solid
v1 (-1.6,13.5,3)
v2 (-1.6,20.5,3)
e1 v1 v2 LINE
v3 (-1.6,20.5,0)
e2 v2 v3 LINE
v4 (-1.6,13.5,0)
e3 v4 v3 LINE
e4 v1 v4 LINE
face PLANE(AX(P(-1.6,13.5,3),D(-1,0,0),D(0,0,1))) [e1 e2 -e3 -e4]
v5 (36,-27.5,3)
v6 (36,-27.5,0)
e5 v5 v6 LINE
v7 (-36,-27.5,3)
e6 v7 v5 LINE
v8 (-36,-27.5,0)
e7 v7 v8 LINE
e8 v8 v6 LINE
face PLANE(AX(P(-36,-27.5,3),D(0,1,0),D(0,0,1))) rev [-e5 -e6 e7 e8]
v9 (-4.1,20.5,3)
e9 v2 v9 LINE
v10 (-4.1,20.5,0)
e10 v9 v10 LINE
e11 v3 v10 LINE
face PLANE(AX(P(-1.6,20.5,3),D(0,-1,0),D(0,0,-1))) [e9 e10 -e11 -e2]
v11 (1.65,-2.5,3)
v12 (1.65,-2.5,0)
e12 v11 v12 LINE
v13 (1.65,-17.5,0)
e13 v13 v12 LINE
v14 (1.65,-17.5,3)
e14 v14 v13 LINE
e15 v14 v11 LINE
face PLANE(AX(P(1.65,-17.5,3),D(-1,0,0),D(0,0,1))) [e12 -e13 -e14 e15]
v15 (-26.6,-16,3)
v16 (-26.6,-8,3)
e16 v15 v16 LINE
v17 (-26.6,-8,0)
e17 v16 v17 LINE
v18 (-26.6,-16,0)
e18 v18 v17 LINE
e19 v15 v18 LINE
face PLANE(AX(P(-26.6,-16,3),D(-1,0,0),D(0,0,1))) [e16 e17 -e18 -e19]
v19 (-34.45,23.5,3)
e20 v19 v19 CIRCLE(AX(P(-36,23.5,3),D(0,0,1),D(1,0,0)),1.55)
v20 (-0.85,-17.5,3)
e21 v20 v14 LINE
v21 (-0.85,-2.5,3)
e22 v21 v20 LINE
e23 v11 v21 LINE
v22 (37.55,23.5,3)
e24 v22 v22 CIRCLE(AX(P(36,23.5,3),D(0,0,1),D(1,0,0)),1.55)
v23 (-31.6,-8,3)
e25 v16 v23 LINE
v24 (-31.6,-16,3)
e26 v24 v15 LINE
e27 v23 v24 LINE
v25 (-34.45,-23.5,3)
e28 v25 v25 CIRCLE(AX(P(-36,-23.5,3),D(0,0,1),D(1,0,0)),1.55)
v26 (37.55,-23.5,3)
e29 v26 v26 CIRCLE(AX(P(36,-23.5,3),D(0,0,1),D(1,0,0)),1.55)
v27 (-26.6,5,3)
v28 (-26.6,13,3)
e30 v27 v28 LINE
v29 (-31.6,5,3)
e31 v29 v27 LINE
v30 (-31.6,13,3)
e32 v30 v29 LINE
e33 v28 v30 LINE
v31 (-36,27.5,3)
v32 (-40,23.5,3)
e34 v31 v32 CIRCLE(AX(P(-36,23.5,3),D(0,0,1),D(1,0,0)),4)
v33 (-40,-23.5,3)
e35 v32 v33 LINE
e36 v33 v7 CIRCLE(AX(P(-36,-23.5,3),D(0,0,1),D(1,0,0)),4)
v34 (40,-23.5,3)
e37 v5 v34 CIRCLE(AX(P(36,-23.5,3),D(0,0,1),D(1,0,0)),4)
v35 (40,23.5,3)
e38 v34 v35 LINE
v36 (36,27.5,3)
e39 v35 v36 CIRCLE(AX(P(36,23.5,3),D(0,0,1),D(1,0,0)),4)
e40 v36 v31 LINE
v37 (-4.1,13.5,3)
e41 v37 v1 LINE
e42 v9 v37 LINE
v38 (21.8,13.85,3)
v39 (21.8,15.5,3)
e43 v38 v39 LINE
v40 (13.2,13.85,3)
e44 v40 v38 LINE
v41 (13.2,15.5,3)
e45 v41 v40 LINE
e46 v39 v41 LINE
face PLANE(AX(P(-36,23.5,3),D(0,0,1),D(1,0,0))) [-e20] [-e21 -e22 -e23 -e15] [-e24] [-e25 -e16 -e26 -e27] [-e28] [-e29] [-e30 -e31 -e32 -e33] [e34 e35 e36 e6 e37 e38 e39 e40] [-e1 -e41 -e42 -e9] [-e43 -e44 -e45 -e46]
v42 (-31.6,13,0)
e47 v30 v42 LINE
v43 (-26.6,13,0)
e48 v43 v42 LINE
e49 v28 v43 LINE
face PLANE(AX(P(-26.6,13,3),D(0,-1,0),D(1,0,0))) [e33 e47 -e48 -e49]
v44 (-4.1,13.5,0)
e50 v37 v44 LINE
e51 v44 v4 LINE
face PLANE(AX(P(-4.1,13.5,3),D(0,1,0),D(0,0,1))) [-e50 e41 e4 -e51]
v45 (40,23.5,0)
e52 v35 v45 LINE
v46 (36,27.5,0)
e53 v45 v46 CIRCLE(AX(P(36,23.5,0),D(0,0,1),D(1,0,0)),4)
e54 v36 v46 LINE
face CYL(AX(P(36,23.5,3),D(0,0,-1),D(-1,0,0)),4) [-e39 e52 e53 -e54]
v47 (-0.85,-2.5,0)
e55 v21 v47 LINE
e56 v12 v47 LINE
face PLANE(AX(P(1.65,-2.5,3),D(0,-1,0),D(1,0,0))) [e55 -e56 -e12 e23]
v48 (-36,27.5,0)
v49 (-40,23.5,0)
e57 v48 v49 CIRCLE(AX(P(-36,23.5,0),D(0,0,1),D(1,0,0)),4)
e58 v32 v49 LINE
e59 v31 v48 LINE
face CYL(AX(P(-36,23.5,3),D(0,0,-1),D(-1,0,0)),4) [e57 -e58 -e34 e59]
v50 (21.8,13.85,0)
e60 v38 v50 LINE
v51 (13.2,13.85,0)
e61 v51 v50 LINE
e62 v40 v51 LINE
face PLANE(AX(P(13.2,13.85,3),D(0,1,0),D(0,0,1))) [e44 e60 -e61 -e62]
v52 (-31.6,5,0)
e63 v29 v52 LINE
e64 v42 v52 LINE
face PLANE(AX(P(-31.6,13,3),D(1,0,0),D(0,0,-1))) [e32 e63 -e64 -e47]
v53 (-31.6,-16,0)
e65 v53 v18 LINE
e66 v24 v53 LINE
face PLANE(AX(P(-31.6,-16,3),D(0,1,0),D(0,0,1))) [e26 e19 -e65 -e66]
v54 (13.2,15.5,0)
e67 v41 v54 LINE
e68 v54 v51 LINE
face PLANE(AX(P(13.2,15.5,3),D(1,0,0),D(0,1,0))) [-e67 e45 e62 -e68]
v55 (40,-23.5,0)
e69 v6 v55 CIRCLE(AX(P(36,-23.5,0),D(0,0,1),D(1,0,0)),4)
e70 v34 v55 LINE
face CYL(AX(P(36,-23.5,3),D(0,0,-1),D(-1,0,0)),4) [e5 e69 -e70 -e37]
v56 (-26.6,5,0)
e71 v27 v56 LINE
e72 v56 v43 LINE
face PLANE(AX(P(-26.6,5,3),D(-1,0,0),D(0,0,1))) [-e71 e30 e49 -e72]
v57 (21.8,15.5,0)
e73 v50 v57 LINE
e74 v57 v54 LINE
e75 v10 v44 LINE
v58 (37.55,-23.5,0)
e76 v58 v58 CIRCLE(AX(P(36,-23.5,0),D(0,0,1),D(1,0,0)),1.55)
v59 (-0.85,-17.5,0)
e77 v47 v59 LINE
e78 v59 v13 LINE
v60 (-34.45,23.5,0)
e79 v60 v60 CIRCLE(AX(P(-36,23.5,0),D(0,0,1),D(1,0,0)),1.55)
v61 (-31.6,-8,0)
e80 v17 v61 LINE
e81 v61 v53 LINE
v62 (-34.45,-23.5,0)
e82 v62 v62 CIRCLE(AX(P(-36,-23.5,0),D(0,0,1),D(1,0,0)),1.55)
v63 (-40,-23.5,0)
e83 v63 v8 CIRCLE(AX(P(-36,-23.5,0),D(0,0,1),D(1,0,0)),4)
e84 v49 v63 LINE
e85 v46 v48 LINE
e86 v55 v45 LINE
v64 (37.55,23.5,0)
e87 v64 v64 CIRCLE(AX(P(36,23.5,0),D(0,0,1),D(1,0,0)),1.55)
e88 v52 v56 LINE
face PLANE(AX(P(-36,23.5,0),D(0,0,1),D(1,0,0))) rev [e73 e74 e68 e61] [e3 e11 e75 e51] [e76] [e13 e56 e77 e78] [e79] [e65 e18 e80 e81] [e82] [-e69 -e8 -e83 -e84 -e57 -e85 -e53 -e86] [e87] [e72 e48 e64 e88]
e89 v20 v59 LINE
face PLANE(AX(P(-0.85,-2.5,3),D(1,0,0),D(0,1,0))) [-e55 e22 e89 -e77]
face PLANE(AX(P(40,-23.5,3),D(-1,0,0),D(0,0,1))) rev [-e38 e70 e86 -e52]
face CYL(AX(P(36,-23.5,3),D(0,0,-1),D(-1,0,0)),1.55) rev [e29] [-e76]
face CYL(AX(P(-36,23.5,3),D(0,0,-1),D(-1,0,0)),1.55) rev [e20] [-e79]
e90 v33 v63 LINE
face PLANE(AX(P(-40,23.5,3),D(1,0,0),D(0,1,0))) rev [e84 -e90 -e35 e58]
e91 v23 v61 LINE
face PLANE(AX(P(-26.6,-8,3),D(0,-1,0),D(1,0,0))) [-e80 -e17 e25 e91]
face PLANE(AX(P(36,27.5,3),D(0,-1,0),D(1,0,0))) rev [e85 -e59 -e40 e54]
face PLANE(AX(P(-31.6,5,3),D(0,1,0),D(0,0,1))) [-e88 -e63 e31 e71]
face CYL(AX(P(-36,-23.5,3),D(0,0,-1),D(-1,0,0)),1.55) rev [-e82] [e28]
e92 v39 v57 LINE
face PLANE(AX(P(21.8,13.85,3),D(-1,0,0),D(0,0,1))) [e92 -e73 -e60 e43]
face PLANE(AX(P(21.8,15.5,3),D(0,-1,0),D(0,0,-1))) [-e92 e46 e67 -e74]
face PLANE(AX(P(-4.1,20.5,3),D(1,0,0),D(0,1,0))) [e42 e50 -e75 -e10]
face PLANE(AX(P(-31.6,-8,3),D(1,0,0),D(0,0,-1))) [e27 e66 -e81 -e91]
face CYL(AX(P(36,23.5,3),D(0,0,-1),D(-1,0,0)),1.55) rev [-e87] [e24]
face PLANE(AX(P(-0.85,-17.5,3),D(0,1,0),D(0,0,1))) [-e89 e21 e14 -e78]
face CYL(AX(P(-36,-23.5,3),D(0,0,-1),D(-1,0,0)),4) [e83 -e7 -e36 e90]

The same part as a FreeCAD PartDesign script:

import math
import FreeCAD as App
import Part
import Sketcher

doc = App.newDocument("Part")
body = doc.addObject("PartDesign::Body", "Body")

sketch1 = body.newObject("Sketcher::SketchObject", "Sketch")
sketch1.AttachmentSupport = (doc.getObject("XY_Plane"), [""])
sketch1.MapMode = "FlatFace"
sketch1.addGeometry(Part.LineSegment(App.Vector(36, 27.5, 0), App.Vector(-36, 27.5, 0)), False)
sketch1.addGeometry(Part.ArcOfCircle(Part.Circle(App.Vector(-36, 23.5, 0), App.Vector(0, 0, 1), 4), math.radians(90), math.radians(180)), False)
sketch1.addGeometry(Part.LineSegment(App.Vector(-40, 23.5, 0), App.Vector(-40, -23.5, 0)), False)
sketch1.addGeometry(Part.ArcOfCircle(Part.Circle(App.Vector(-36, -23.5, 0), App.Vector(0, 0, 1), 4), math.radians(180), math.radians(270)), False)
sketch1.addGeometry(Part.LineSegment(App.Vector(-36, -27.5, 0), App.Vector(36, -27.5, 0)), False)
sketch1.addGeometry(Part.ArcOfCircle(Part.Circle(App.Vector(36, -23.5, 0), App.Vector(0, 0, 1), 4), math.radians(-90), math.radians(0)), False)
sketch1.addGeometry(Part.LineSegment(App.Vector(40, -23.5, 0), App.Vector(40, 23.5, 0)), False)
sketch1.addGeometry(Part.ArcOfCircle(Part.Circle(App.Vector(36, 23.5, 0), App.Vector(0, 0, 1), 4), math.radians(0), math.radians(90)), False)
sketch1.addGeometry(Part.Circle(App.Vector(-36, -23.5, 0), App.Vector(0, 0, 1), 1.6), False)
sketch1.addGeometry(Part.LineSegment(App.Vector(-26.6, -16, 0), App.Vector(-31.6, -16, 0)), False)
sketch1.addGeometry(Part.LineSegment(App.Vector(-31.6, -16, 0), App.Vector(-31.6, -8, 0)), False)
sketch1.addGeometry(Part.LineSegment(App.Vector(-31.6, -8, 0), App.Vector(-26.6, -8, 0)), False)
sketch1.addGeometry(Part.LineSegment(App.Vector(-26.6, -8, 0), App.Vector(-26.6, -16, 0)), False)
sketch1.addGeometry(Part.Circle(App.Vector(36, -23.5, 0), App.Vector(0, 0, 1), 1.6), False)
sketch1.addGeometry(Part.LineSegment(App.Vector(1.6, -17.5, 0), App.Vector(-0.8, -17.5, 0)), False)
sketch1.addGeometry(Part.LineSegment(App.Vector(-0.8, -17.5, 0), App.Vector(-0.8, -2.5, 0)), False)
sketch1.addGeometry(Part.LineSegment(App.Vector(-0.8, -2.5, 0), App.Vector(1.6, -2.5, 0)), False)
sketch1.addGeometry(Part.LineSegment(App.Vector(1.6, -2.5, 0), App.Vector(1.6, -17.5, 0)), False)
sketch1.addGeometry(Part.LineSegment(App.Vector(-26.6, 5, 0), App.Vector(-31.6, 5, 0)), False)
sketch1.addGeometry(Part.LineSegment(App.Vector(-31.6, 5, 0), App.Vector(-31.6, 13, 0)), False)
sketch1.addGeometry(Part.LineSegment(App.Vector(-31.6, 13, 0), App.Vector(-26.6, 13, 0)), False)
sketch1.addGeometry(Part.LineSegment(App.Vector(-26.6, 13, 0), App.Vector(-26.6, 5, 0)), False)
sketch1.addGeometry(Part.Circle(App.Vector(-36, 23.5, 0), App.Vector(0, 0, 1), 1.6), False)
sketch1.addGeometry(Part.LineSegment(App.Vector(-1.6, 13.5, 0), App.Vector(-4.1, 13.5, 0)), False)
sketch1.addGeometry(Part.LineSegment(App.Vector(-4.1, 13.5, 0), App.Vector(-4.1, 20.5, 0)), False)
sketch1.addGeometry(Part.LineSegment(App.Vector(-4.1, 20.5, 0), App.Vector(-1.6, 20.5, 0)), False)
sketch1.addGeometry(Part.LineSegment(App.Vector(-1.6, 20.5, 0), App.Vector(-1.6, 13.5, 0)), False)
sketch1.addGeometry(Part.LineSegment(App.Vector(21.8, 13.8, 0), App.Vector(13.2, 13.8, 0)), False)
sketch1.addGeometry(Part.LineSegment(App.Vector(13.2, 13.8, 0), App.Vector(13.2, 15.5, 0)), False)
sketch1.addGeometry(Part.LineSegment(App.Vector(13.2, 15.5, 0), App.Vector(21.8, 15.5, 0)), False)
sketch1.addGeometry(Part.LineSegment(App.Vector(21.8, 15.5, 0), App.Vector(21.8, 13.8, 0)), False)
sketch1.addGeometry(Part.Circle(App.Vector(36, 23.5, 0), App.Vector(0, 0, 1), 1.6), False)
sketch1.addConstraint(Sketcher.Constraint("Tangent", 0, 2, 1, 1))
sketch1.addConstraint(Sketcher.Constraint("Tangent", 1, 2, 2, 1))
sketch1.addConstraint(Sketcher.Constraint("Tangent", 2, 2, 3, 1))
sketch1.addConstraint(Sketcher.Constraint("Tangent", 3, 2, 4, 1))
sketch1.addConstraint(Sketcher.Constraint("Tangent", 4, 2, 5, 1))
sketch1.addConstraint(Sketcher.Constraint("Tangent", 5, 2, 6, 1))
sketch1.addConstraint(Sketcher.Constraint("Tangent", 6, 2, 7, 1))
sketch1.addConstraint(Sketcher.Constraint("Tangent", 7, 2, 0, 1))
sketch1.addConstraint(Sketcher.Constraint("Coincident", 9, 2, 10, 1))
sketch1.addConstraint(Sketcher.Constraint("Coincident", 10, 2, 11, 1))
sketch1.addConstraint(Sketcher.Constraint("Coincident", 11, 2, 12, 1))
sketch1.addConstraint(Sketcher.Constraint("Coincident", 12, 2, 9, 1))
sketch1.addConstraint(Sketcher.Constraint("Coincident", 14, 2, 15, 1))
sketch1.addConstraint(Sketcher.Constraint("Coincident", 15, 2, 16, 1))
sketch1.addConstraint(Sketcher.Constraint("Coincident", 16, 2, 17, 1))
sketch1.addConstraint(Sketcher.Constraint("Coincident", 17, 2, 14, 1))
sketch1.addConstraint(Sketcher.Constraint("Coincident", 18, 2, 19, 1))
sketch1.addConstraint(Sketcher.Constraint("Coincident", 19, 2, 20, 1))
sketch1.addConstraint(Sketcher.Constraint("Coincident", 20, 2, 21, 1))
sketch1.addConstraint(Sketcher.Constraint("Coincident", 21, 2, 18, 1))
sketch1.addConstraint(Sketcher.Constraint("Coincident", 23, 2, 24, 1))
sketch1.addConstraint(Sketcher.Constraint("Coincident", 24, 2, 25, 1))
sketch1.addConstraint(Sketcher.Constraint("Coincident", 25, 2, 26, 1))
sketch1.addConstraint(Sketcher.Constraint("Coincident", 26, 2, 23, 1))
sketch1.addConstraint(Sketcher.Constraint("Coincident", 27, 2, 28, 1))
sketch1.addConstraint(Sketcher.Constraint("Coincident", 28, 2, 29, 1))
sketch1.addConstraint(Sketcher.Constraint("Coincident", 29, 2, 30, 1))
sketch1.addConstraint(Sketcher.Constraint("Coincident", 30, 2, 27, 1))
sketch1.addConstraint(Sketcher.Constraint("Horizontal", 0))
sketch1.addConstraint(Sketcher.Constraint("Vertical", 2))
sketch1.addConstraint(Sketcher.Constraint("Horizontal", 4))
sketch1.addConstraint(Sketcher.Constraint("Vertical", 6))
sketch1.addConstraint(Sketcher.Constraint("Horizontal", 9))
sketch1.addConstraint(Sketcher.Constraint("Vertical", 10))
sketch1.addConstraint(Sketcher.Constraint("Horizontal", 11))
sketch1.addConstraint(Sketcher.Constraint("Vertical", 12))
sketch1.addConstraint(Sketcher.Constraint("Horizontal", 14))
sketch1.addConstraint(Sketcher.Constraint("Vertical", 15))
sketch1.addConstraint(Sketcher.Constraint("Horizontal", 16))
sketch1.addConstraint(Sketcher.Constraint("Vertical", 17))
sketch1.addConstraint(Sketcher.Constraint("Horizontal", 18))
sketch1.addConstraint(Sketcher.Constraint("Vertical", 19))
sketch1.addConstraint(Sketcher.Constraint("Horizontal", 20))
sketch1.addConstraint(Sketcher.Constraint("Vertical", 21))
sketch1.addConstraint(Sketcher.Constraint("Horizontal", 23))
sketch1.addConstraint(Sketcher.Constraint("Vertical", 24))
sketch1.addConstraint(Sketcher.Constraint("Horizontal", 25))
sketch1.addConstraint(Sketcher.Constraint("Vertical", 26))
sketch1.addConstraint(Sketcher.Constraint("Horizontal", 27))
sketch1.addConstraint(Sketcher.Constraint("Vertical", 28))
sketch1.addConstraint(Sketcher.Constraint("Horizontal", 29))
sketch1.addConstraint(Sketcher.Constraint("Vertical", 30))
sketch1.addConstraint(Sketcher.Constraint("Coincident", 8, 3, 3, 3))
sketch1.addConstraint(Sketcher.Constraint("Coincident", 13, 3, 5, 3))
sketch1.addConstraint(Sketcher.Constraint("Coincident", 22, 3, 1, 3))
sketch1.addConstraint(Sketcher.Constraint("Coincident", 31, 3, 7, 3))
sketch1.addConstraint(Sketcher.Constraint("Equal", 1, 3))
sketch1.addConstraint(Sketcher.Constraint("Equal", 3, 5))
sketch1.addConstraint(Sketcher.Constraint("Equal", 5, 7))
sketch1.addConstraint(Sketcher.Constraint("Equal", 8, 13))
sketch1.addConstraint(Sketcher.Constraint("Equal", 13, 22))
sketch1.addConstraint(Sketcher.Constraint("Equal", 22, 31))
sketch1.addConstraint(Sketcher.Constraint("Symmetric", 1, 3, 5, 3, -1, 1))
sketch1.addConstraint(Sketcher.Constraint("Vertical", 10, 2, 18, 2))
sketch1.addConstraint(Sketcher.Constraint("Vertical", 12, 2, 20, 2))
sketch1.addConstraint(Sketcher.Constraint("Equal", 16, 23))
sketch1.addConstraint(Sketcher.Constraint("Equal", 12, 19))
sketch1.addConstraint(Sketcher.Constraint("Radius", 1, 4.0))
sketch1.addConstraint(Sketcher.Constraint("Diameter", 8, 3.1))
sketch1.addConstraint(Sketcher.Constraint("DistanceX", 0, 2, 0, 1, 72.0))
sketch1.addConstraint(Sketcher.Constraint("DistanceX", 9, 2, 9, 1, 5.0))
sketch1.addConstraint(Sketcher.Constraint("DistanceY", 2, 2, 2, 1, 47.0))
sketch1.addConstraint(Sketcher.Constraint("DistanceY", 10, 1, 10, 2, 8.0))
sketch1.addConstraint(Sketcher.Constraint("DistanceY", 15, 1, 15, 2, 15.0))
sketch1.addConstraint(Sketcher.Constraint("DistanceY", 24, 1, 24, 2, 7.0))
sketch1.addConstraint(Sketcher.Constraint("DistanceX", 14, 2, 14, 1, 2.5))
sketch1.addConstraint(Sketcher.Constraint("DistanceX", 27, 2, 27, 1, 8.6))
sketch1.addConstraint(Sketcher.Constraint("DistanceY", 9, 2, -1, 1, 16.0))
sketch1.addConstraint(Sketcher.Constraint("DistanceY", -1, 1, 18, 2, 5.0))
sketch1.addConstraint(Sketcher.Constraint("DistanceY", 8, 3, 14, 2, 6.0))
sketch1.addConstraint(Sketcher.Constraint("DistanceY", 15, 2, 23, 2, 16.0))
sketch1.addConstraint(Sketcher.Constraint("DistanceX", 20, 2, 25, 2, 25.0))
sketch1.addConstraint(Sketcher.Constraint("DistanceY", 26, 2, 28, 2, 2.0))
sketch1.addConstraint(Sketcher.Constraint("DistanceY", 28, 1, 28, 2, 1.65))
sketch1.addConstraint(Sketcher.Constraint("DistanceX", 9, 2, -1, 1, 31.6))
sketch1.addConstraint(Sketcher.Constraint("DistanceX", -1, 1, 27, 2, 13.2))
sketch1.addConstraint(Sketcher.Constraint("DistanceX", 14, 2, -1, 1, 0.85))
pad1 = body.newObject("PartDesign::Pad", "Pad")
pad1.Profile = sketch1
pad1.Length = 3

doc.recompute()
